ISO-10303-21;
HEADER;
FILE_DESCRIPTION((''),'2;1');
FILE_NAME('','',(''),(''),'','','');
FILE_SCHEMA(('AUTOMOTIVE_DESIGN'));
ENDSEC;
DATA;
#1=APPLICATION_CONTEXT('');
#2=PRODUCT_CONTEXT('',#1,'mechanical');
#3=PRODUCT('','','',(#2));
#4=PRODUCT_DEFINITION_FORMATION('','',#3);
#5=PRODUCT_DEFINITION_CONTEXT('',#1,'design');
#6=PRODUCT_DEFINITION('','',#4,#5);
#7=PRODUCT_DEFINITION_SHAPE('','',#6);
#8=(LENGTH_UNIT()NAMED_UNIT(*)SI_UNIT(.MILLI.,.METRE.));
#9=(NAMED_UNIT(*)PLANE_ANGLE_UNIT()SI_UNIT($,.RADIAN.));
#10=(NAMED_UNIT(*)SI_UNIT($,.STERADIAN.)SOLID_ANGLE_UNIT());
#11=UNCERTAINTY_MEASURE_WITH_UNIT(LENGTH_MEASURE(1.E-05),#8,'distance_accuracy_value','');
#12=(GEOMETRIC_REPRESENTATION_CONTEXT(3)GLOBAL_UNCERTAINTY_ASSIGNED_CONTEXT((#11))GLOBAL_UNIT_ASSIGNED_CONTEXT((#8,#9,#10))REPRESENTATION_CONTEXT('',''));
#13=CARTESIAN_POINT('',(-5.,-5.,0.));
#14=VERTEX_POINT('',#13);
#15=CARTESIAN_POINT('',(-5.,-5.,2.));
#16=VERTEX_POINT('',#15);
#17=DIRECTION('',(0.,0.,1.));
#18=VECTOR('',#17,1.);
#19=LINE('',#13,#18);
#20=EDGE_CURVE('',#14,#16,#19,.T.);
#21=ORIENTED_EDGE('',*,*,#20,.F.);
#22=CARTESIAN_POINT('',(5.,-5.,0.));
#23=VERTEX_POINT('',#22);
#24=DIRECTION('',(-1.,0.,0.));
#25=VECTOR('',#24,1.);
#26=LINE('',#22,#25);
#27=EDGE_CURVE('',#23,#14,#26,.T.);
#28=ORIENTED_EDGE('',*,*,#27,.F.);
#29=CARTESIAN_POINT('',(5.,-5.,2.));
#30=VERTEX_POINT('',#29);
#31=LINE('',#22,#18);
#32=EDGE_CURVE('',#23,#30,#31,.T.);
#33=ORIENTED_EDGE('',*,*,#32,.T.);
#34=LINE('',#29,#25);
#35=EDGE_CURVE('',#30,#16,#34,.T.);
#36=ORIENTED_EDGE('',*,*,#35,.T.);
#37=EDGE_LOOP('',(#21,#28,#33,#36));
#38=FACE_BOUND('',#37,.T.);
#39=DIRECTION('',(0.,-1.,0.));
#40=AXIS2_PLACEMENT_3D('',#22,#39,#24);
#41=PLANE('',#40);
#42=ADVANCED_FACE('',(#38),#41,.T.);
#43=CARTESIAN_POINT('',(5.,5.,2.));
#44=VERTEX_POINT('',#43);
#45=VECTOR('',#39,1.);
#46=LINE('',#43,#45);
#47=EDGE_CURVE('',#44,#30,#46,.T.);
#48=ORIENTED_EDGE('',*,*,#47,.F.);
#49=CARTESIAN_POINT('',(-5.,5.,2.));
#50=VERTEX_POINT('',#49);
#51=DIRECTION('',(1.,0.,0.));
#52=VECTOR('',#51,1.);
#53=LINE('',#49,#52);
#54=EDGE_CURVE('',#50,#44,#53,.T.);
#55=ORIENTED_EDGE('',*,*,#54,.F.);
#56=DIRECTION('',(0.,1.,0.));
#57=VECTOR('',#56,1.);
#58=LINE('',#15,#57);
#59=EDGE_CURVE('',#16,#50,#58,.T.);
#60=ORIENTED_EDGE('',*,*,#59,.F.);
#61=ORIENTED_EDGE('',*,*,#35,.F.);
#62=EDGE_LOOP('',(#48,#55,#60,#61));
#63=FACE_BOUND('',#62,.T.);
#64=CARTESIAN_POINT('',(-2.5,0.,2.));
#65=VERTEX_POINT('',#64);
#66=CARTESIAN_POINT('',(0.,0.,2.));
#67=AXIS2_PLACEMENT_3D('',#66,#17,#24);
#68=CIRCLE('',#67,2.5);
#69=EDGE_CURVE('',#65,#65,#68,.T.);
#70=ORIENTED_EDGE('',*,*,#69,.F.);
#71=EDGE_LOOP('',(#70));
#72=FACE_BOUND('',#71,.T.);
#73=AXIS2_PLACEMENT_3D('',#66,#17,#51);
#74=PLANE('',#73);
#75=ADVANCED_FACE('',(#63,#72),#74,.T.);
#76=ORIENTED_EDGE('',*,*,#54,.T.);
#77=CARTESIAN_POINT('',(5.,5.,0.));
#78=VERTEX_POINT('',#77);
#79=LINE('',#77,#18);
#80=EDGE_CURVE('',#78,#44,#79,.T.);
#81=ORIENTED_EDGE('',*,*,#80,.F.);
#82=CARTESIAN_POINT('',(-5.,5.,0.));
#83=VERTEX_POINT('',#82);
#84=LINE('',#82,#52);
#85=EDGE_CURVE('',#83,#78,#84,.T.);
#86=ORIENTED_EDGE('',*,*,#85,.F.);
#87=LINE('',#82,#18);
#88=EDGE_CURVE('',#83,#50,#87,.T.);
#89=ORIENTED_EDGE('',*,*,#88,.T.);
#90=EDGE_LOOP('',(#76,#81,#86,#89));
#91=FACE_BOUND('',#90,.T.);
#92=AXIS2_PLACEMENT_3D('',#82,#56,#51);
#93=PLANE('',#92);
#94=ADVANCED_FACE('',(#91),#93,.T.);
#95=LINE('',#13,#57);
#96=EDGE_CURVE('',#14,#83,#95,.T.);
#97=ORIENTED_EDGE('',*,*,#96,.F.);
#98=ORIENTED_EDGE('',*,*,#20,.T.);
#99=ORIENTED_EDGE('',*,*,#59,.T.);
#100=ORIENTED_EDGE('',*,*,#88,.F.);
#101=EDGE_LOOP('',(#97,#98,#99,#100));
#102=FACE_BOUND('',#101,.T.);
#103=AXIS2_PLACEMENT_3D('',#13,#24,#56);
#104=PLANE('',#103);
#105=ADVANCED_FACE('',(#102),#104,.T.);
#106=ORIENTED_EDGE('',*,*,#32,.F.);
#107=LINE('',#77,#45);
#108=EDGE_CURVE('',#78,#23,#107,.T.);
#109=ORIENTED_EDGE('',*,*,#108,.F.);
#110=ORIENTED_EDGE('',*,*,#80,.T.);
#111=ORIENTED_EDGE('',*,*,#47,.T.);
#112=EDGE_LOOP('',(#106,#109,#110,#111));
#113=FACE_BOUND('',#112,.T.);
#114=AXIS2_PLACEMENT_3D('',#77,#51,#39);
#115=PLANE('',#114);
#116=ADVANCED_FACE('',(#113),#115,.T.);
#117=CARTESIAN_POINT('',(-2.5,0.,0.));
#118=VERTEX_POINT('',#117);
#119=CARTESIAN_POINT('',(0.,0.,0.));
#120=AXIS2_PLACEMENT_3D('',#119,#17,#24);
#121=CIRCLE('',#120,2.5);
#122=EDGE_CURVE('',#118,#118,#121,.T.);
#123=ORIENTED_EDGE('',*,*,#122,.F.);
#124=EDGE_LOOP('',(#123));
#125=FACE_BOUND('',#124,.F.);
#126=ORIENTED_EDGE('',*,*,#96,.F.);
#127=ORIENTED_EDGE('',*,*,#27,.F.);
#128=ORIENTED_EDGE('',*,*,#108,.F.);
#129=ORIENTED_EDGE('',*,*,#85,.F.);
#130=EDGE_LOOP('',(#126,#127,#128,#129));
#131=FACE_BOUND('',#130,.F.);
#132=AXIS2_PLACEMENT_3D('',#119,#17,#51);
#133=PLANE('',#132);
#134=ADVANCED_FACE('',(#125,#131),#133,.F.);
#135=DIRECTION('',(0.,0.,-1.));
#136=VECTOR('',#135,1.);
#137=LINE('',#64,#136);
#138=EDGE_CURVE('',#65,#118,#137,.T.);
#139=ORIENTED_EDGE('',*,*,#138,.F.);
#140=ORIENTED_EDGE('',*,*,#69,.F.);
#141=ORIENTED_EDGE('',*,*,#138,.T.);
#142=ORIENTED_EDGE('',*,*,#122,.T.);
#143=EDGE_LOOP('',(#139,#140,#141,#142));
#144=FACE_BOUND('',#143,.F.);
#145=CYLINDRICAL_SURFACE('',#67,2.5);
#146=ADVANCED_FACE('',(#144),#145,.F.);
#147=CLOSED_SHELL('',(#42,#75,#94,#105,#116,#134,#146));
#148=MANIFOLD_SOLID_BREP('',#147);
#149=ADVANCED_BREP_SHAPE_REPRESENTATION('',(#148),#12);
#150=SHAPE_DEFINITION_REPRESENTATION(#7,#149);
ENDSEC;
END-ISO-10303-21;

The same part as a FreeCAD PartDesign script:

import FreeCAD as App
import Part
import Sketcher
Q = App.Units.Quantity

doc = App.newDocument("Part")
body = doc.addObject("PartDesign::Body", "Body")

sketch1 = body.newObject("Sketcher::SketchObject", "Sketch")
sketch1.AttachmentSupport = (doc.getObject("XY_Plane"), [""])
sketch1.MapMode = "FlatFace"
sketch1.addGeometry([
    Part.LineSegment(App.Vector(-5, -5, 0), App.Vector(5, -5, 0)),
    Part.LineSegment(App.Vector(5, -5, 0), App.Vector(5, 5, 0)),
    Part.LineSegment(App.Vector(5, 5, 0), App.Vector(-5, 5, 0)),
    Part.LineSegment(App.Vector(-5, 5, 0), App.Vector(-5, -5, 0)),
], False)
sketch1.addConstraint([
    Sketcher.Constraint("Coincident", 0, 2, 1, 1),
    Sketcher.Constraint("Coincident", 1, 2, 2, 1),
    Sketcher.Constraint("Coincident", 2, 2, 3, 1),
    Sketcher.Constraint("Coincident", 3, 2, 0, 1),
    Sketcher.Constraint("Horizontal", 0),
    Sketcher.Constraint("Vertical", 1),
    Sketcher.Constraint("Horizontal", 2),
    Sketcher.Constraint("Vertical", 3),
    Sketcher.Constraint("Symmetric", 0, 2, 2, 2, -1, 1),
    Sketcher.Constraint("Equal", 2, 1),
    Sketcher.Constraint("DistanceX", 0, 1, 0, 2, Q("10 mm")),
])
pad1 = body.newObject("PartDesign::Pad", "Pad")
pad1.Profile = sketch1
pad1.Length = 2

sketch2 = body.newObject("Sketcher::SketchObject", "Sketch001")
sketch2.AttachmentSupport = (doc.getObject("XY_Plane"), [""])
sketch2.MapMode = "FlatFace"
sketch2.AttachmentOffset = App.Placement(App.Vector(0, 0, 2), App.Rotation())
sketch2.addGeometry(Part.Circle(App.Vector(0, 0, 0), App.Vector(0, 0, 1), 2.5), False)
sketch2.addConstraint([
    Sketcher.Constraint("Coincident", 0, 3, -1, 1),
    Sketcher.Constraint("Diameter", 0, Q("5 mm")),
])
pocket1 = body.newObject("PartDesign::Pocket", "Pocket")
pocket1.Profile = sketch2
pocket1.Length = 2

doc.recompute()
